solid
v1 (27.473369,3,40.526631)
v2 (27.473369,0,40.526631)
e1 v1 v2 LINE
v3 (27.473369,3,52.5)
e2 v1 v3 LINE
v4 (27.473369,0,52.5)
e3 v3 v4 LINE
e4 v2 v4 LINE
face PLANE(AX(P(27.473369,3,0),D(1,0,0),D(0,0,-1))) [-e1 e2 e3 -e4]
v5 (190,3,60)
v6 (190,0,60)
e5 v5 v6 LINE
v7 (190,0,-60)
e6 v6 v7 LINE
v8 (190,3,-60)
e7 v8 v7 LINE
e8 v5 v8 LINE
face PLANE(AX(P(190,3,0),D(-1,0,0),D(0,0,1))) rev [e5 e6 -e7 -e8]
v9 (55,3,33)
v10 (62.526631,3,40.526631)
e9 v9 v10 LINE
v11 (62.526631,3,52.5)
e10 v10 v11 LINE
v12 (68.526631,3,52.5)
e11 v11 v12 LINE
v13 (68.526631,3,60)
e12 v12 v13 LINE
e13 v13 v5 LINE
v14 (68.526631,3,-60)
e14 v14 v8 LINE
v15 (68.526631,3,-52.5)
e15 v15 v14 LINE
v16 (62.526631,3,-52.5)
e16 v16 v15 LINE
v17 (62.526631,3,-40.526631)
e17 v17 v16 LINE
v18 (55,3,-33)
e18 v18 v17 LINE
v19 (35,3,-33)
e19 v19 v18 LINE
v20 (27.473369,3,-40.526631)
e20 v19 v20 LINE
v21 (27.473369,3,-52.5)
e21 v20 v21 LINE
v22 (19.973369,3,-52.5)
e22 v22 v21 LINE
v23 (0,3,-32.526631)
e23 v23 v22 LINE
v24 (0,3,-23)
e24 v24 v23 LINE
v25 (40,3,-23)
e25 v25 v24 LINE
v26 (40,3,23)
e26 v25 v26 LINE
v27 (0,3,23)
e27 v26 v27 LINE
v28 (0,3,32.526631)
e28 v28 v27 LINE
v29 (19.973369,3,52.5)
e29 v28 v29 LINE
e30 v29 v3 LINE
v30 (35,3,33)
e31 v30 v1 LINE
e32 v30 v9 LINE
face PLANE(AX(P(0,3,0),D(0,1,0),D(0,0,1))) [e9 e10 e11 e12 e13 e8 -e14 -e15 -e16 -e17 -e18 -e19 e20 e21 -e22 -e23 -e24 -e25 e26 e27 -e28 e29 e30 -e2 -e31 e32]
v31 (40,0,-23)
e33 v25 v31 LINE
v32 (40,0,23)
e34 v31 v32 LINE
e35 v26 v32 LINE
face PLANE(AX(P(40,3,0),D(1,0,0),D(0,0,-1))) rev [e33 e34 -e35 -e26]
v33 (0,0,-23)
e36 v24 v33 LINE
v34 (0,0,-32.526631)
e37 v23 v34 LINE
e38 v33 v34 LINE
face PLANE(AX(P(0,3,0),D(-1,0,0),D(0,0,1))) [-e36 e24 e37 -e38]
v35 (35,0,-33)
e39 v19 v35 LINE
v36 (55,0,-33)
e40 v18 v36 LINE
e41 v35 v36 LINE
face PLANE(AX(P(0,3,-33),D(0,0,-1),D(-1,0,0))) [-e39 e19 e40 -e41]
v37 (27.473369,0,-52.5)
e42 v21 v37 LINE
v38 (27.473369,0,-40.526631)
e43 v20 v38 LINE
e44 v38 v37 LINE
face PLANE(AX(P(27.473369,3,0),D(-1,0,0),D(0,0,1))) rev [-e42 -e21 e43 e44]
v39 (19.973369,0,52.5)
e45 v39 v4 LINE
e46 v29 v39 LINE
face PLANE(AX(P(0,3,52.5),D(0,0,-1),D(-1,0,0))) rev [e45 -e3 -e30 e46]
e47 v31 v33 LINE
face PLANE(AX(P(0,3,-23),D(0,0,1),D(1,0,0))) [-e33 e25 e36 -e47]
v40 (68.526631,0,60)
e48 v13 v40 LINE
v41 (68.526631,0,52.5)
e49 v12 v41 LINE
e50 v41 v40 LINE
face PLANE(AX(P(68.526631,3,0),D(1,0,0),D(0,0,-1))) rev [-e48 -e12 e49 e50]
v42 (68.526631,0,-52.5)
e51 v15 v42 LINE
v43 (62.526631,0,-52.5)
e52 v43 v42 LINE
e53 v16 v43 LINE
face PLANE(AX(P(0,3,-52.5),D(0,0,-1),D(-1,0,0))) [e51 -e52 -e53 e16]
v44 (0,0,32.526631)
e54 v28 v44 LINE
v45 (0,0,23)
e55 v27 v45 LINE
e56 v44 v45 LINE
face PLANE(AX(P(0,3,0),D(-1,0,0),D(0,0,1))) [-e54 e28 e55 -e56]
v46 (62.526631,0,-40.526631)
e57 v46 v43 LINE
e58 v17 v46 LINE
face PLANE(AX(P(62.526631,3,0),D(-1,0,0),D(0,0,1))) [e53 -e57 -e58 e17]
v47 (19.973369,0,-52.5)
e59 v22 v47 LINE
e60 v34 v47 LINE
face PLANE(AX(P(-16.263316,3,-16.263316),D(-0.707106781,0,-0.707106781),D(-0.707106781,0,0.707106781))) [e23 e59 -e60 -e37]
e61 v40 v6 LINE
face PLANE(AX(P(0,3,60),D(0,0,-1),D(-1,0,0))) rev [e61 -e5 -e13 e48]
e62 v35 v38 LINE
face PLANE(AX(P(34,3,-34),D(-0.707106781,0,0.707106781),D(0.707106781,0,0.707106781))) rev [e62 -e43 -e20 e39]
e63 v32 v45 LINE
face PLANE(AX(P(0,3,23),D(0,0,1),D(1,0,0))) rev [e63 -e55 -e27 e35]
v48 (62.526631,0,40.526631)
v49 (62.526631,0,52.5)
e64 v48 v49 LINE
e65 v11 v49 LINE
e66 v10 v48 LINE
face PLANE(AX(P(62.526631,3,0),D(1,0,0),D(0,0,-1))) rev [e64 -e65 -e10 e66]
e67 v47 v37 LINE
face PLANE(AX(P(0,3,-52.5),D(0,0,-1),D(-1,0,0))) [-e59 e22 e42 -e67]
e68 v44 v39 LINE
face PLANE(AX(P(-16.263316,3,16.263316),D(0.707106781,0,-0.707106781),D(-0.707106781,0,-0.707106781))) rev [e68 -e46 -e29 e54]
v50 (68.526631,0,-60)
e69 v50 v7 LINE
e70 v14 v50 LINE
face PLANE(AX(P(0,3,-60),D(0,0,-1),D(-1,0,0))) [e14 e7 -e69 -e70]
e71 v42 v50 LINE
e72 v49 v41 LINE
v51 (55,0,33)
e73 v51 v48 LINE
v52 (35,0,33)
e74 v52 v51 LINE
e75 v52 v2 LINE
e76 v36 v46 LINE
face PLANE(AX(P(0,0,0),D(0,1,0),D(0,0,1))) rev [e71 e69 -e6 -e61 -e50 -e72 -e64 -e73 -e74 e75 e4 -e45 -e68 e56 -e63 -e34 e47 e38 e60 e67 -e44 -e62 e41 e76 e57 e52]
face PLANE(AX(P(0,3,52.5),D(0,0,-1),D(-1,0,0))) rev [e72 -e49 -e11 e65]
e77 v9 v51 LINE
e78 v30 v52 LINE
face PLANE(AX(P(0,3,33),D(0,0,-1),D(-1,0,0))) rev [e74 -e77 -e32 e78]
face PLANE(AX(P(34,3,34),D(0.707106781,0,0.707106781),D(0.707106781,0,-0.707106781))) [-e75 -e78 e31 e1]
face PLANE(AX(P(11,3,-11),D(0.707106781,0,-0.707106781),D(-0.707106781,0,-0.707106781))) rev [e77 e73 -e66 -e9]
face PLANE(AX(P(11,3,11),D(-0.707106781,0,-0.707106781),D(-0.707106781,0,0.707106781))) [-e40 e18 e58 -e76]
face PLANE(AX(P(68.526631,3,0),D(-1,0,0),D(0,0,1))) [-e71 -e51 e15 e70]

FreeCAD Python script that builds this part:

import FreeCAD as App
import Part
import Sketcher
Q = App.Units.Quantity


def add_polygon(sketch, points):
    """Adds a closed chain of lines whose ends are joined by coincident constraints."""
    first, n = sketch.GeometryCount, len(points)
    for a, b in zip(points, points[1:] + points[:1]):
        sketch.addGeometry(Part.LineSegment(App.Vector(*a, 0), App.Vector(*b, 0)), False)
    for i in range(n):
        sketch.addConstraint(Sketcher.Constraint("Coincident", first + i, 2, first + (i + 1) % n, 1))

doc = App.newDocument("Part")
body = doc.addObject("PartDesign::Body", "Body")

# Sketch on XZ plane
sketch1 = doc.addObject("Sketcher::SketchObject", "Sketch")
body.addObject(sketch1)
sketch1.AttachmentSupport = (doc.XZ_Plane, [""])
sketch1.MapMode = "FlatFace"
add_polygon(sketch1, [(69, 52), (69, 60), (190, 60), (190, -60), (69, -60), (69, -52), (63, -52), (63, -41), (55, -33), (35, -33), (27, -41), (27, -52), (20, -52), (0, -33), (0, -23), (40, -23), (40, 23), (0, 23), (0, 33), (20, 52), (27, 52), (27, 41), (35, 33), (55, 33), (63, 41), (63, 52)])  # lines 0-25
sketch1.addConstraint([
    Sketcher.Constraint("Vertical", 0),
    Sketcher.Constraint("Horizontal", 1),
    Sketcher.Constraint("Vertical", 2),
    Sketcher.Constraint("Horizontal", 3),
    Sketcher.Constraint("Vertical", 4),
    Sketcher.Constraint("Horizontal", 5),
    Sketcher.Constraint("Vertical", 6),
    Sketcher.Constraint("Horizontal", 8),
    Sketcher.Constraint("Vertical", 10),
    Sketcher.Constraint("Horizontal", 11),
    Sketcher.Constraint("Vertical", 13),
    Sketcher.Constraint("Horizontal", 14),
    Sketcher.Constraint("Vertical", 15),
    Sketcher.Constraint("Horizontal", 16),
    Sketcher.Constraint("Vertical", 17),
    Sketcher.Constraint("Horizontal", 19),
    Sketcher.Constraint("Vertical", 20),
    Sketcher.Constraint("Horizontal", 22),
    Sketcher.Constraint("Vertical", 24),
    Sketcher.Constraint("Horizontal", 25),
    Sketcher.Constraint("Symmetric", 13, 2, 16, 2, -1, 1),
    Sketcher.Constraint("Symmetric", 0, 2, 3, 2, -1),
    Sketcher.Constraint("Symmetric", 12, 2, 17, 2, -1),
    Sketcher.Constraint("Symmetric", 11, 2, 18, 2, -1),
    Sketcher.Constraint("Symmetric", 9, 2, 20, 2, -1),
    Sketcher.Constraint("Symmetric", 8, 2, 21, 2, -1),
    Sketcher.Constraint("Symmetric", 6, 2, 23, 2, -1),
    Sketcher.Constraint("Perpendicular", 7, 9),
    Sketcher.Constraint("Perpendicular", 9, 12),
    Sketcher.Constraint("Perpendicular", 12, 18),
    Sketcher.Constraint("Perpendicular", 21, 23),
    Sketcher.Constraint("Horizontal", 6, 2, 9, 2),
    Sketcher.Constraint("Horizontal", 5, 2, 10, 2),
    Sketcher.Constraint("Horizontal", 19, 2, 24, 2),
    Sketcher.Constraint("Equal", 19, 0),
    Sketcher.Constraint("DistanceX", 5, 2, 5, 1, Q("6 mm")),
    Sketcher.Constraint("DistanceX", 8, 2, 8, 1, Q("20 mm")),
    Sketcher.Constraint("DistanceX", 14, 1, 14, 2, Q("40 mm")),
    Sketcher.Constraint("DistanceY", 2, 2, 2, 1, Q("120 mm")),
    Sketcher.Constraint("DistanceY", 15, 1, 15, 2, Q("46 mm")),
    Sketcher.Constraint("DistanceX", 11, 2, 11, 1, Q("7.5 mm")),
    Sketcher.Constraint("DistanceX", -1, 1, 1, 2, Q("190 mm")),
    Sketcher.Constraint("DistanceX", -1, 1, 7, 2, Q("55 mm")),
    Sketcher.Constraint("DistanceY", 7, 2, -1, 1, Q("33 mm")),
    Sketcher.Constraint("DistanceX", 1, 1, 1, 2, Q("121.473369 mm")),
])
pad1 = doc.addObject("PartDesign::Pad", "Pad")
body.addObject(pad1)
pad1.Profile = sketch1
pad1.Length = 3
pad1.Reversed = True

doc.recompute()
